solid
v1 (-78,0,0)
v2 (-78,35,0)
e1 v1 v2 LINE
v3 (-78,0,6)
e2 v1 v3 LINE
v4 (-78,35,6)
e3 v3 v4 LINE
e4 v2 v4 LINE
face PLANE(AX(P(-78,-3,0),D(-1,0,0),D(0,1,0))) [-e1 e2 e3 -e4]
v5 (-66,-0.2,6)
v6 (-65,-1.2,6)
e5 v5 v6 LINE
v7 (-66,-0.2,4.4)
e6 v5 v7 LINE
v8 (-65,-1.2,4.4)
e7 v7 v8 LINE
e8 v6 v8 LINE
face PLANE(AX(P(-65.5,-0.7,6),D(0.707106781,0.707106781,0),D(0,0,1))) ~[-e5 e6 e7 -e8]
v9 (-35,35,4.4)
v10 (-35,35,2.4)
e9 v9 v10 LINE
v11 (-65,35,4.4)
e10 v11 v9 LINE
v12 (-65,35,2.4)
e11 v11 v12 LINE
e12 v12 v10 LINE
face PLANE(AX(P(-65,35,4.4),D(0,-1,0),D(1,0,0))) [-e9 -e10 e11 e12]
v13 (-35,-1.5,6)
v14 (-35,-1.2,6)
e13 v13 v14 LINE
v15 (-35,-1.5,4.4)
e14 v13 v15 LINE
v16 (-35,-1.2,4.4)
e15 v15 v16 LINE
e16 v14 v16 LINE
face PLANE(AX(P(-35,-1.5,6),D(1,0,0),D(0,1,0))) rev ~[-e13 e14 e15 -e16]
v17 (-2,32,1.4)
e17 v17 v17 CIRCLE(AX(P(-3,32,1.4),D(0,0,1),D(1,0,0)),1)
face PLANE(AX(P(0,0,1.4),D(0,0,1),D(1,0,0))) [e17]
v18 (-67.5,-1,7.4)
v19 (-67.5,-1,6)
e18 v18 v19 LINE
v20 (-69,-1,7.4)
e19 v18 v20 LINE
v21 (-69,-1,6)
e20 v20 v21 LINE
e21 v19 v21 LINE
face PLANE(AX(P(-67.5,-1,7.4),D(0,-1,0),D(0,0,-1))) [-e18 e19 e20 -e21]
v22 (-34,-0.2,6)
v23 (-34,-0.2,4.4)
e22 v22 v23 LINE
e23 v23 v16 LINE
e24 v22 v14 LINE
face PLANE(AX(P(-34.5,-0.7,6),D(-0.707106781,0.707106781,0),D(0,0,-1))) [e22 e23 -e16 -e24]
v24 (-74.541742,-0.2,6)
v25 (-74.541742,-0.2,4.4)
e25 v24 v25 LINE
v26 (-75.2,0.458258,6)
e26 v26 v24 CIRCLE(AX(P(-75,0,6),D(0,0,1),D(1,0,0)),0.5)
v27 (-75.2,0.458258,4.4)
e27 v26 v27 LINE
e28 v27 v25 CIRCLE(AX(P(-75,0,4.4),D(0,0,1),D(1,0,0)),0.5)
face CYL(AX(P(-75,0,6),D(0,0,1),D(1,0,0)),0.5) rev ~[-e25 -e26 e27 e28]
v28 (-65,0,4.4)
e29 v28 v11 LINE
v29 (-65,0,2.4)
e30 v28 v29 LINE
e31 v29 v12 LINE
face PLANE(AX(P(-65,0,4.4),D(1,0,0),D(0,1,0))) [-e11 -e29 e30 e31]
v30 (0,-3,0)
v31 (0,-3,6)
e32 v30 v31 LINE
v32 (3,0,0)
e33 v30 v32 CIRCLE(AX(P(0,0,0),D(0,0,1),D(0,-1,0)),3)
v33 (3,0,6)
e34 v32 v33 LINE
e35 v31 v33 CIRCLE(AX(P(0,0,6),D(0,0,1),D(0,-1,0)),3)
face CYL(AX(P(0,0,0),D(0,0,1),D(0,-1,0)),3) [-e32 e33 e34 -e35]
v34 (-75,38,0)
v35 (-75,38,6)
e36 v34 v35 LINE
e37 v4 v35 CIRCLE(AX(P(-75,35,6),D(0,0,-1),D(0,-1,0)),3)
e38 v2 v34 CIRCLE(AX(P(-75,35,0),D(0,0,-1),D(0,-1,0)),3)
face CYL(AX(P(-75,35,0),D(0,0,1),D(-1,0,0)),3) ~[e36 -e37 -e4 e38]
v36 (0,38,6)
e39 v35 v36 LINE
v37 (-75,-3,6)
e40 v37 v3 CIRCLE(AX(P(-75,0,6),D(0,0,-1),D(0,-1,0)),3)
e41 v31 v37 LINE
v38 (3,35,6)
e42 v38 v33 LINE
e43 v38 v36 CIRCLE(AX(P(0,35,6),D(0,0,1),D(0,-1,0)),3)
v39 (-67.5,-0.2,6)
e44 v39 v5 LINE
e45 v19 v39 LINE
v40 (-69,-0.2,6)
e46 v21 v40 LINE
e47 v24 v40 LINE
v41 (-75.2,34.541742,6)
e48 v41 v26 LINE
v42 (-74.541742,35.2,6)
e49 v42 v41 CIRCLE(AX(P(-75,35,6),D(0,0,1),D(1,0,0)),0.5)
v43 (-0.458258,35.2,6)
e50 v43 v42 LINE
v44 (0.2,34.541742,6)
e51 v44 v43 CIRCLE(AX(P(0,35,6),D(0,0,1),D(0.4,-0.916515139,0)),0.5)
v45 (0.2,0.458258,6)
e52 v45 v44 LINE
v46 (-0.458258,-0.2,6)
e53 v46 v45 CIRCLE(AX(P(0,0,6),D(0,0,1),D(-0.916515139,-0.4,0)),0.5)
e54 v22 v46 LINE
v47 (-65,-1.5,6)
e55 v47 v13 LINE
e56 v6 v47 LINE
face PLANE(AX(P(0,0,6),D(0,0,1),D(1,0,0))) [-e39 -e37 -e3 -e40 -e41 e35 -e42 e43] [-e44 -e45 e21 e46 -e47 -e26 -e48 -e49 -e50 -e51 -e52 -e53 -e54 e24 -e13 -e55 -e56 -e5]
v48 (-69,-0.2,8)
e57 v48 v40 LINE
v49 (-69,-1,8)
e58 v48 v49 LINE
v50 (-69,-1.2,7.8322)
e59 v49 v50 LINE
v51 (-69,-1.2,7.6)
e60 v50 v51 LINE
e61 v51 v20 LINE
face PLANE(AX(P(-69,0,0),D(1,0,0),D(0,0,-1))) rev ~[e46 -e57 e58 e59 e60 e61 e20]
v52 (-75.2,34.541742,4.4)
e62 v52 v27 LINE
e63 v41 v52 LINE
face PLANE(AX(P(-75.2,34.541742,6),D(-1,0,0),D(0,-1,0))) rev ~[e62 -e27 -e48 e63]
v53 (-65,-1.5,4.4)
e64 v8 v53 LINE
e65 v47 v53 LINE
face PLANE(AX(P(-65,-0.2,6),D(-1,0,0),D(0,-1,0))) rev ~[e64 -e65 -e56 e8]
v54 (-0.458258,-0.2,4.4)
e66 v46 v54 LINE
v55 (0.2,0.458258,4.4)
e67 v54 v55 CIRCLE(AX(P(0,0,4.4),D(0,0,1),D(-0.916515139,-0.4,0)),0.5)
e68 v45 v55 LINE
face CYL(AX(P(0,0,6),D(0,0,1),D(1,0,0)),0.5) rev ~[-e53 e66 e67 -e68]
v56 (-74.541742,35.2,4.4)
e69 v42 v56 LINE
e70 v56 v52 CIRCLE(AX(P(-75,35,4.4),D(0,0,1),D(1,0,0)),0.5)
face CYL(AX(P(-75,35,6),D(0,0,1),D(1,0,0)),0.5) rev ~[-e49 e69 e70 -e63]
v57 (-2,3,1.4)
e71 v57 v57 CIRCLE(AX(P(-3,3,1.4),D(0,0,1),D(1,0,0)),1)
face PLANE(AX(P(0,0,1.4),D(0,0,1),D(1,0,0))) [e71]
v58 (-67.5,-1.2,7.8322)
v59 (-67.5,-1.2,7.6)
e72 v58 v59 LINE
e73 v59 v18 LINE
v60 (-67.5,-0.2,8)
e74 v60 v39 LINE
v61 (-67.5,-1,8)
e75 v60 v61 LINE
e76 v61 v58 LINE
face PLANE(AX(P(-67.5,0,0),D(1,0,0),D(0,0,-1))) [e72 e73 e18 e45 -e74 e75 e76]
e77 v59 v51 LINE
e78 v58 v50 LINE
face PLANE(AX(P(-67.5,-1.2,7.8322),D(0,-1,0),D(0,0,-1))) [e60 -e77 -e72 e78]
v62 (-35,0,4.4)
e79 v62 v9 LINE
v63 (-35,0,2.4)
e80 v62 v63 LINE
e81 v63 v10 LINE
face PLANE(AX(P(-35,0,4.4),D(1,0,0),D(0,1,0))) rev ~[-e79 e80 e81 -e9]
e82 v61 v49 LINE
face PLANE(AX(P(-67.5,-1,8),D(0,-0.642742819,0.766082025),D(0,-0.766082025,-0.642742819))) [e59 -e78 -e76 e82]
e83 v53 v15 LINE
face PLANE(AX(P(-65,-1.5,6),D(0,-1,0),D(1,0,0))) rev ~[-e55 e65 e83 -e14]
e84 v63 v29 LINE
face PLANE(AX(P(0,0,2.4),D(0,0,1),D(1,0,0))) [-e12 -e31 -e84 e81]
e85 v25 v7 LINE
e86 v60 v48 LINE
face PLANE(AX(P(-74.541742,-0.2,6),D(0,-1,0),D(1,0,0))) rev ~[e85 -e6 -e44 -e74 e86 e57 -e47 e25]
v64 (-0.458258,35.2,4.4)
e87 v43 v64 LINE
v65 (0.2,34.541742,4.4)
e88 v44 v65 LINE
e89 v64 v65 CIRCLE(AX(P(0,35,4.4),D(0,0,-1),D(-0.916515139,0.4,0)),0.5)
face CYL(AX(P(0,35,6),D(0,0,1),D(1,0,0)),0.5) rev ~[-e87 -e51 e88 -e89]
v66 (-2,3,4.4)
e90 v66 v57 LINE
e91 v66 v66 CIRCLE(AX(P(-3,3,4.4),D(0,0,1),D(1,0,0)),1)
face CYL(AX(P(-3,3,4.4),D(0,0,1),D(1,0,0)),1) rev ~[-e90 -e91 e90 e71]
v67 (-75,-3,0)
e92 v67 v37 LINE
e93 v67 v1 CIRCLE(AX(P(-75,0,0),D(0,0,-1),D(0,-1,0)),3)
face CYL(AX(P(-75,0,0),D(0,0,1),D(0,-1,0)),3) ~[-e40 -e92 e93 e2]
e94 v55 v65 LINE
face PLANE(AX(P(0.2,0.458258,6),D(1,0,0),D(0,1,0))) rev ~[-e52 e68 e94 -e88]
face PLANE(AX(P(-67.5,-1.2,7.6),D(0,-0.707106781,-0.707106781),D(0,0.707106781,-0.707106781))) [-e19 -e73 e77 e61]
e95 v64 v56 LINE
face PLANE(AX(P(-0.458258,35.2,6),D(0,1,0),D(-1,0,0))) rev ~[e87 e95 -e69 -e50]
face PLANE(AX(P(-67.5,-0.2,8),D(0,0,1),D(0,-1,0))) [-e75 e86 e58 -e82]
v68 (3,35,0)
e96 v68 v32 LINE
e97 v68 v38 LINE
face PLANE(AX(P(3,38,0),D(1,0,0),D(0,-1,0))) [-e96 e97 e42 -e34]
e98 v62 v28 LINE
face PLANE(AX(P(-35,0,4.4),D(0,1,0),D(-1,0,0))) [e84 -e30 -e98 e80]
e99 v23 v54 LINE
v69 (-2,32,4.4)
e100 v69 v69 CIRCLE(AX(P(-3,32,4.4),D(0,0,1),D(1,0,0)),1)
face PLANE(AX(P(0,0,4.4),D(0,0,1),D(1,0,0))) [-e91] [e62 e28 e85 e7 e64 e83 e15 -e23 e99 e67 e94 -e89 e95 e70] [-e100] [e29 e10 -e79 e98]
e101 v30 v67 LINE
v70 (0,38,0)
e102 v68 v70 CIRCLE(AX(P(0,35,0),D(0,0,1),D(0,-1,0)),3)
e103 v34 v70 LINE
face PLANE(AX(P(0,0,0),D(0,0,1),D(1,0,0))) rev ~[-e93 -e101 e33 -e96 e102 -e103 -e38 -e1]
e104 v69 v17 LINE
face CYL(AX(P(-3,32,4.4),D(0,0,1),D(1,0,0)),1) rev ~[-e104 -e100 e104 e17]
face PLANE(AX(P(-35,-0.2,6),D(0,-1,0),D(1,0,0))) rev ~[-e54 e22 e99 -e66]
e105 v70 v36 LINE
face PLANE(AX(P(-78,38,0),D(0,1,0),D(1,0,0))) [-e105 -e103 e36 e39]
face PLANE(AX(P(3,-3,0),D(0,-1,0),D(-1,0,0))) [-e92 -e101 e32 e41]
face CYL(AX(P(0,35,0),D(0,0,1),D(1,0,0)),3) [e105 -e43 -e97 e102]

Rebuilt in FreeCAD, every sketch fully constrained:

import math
import FreeCAD as App
import Part
import Sketcher
Q = App.Units.Quantity


def edges_at(feature, points):
    """Names of the edges that pass closest to the given points."""
    edges = feature.Shape.Edges
    near = lambda p: min(range(len(edges)), key=lambda i: edges[i].distToShape(Part.Vertex(*p))[0])
    return sorted({f"Edge{near(p) + 1}" for p in points})

doc = App.newDocument("Part")
body = doc.addObject("PartDesign::Body", "Body")

# Sketch on XY plane
sketch1 = doc.addObject("Sketcher::SketchObject", "Sketch")
body.addObject(sketch1)
sketch1.AttachmentSupport = (doc.XY_Plane, [""])
sketch1.MapMode = "FlatFace"
sketch1.addGeometry(Part.LineSegment(App.Vector(-78, -3, 0), App.Vector(3, -3, 0)), False)
sketch1.addGeometry(Part.LineSegment(App.Vector(3, -3, 0), App.Vector(3, 38, 0)), False)
sketch1.addGeometry(Part.LineSegment(App.Vector(3, 38, 0), App.Vector(-78, 38, 0)), False)
sketch1.addGeometry(Part.LineSegment(App.Vector(-78, 38, 0), App.Vector(-78, -3, 0)), False)
sketch1.addConstraint(Sketcher.Constraint("Coincident", 0, 2, 1, 1))
sketch1.addConstraint(Sketcher.Constraint("Coincident", 1, 2, 2, 1))
sketch1.addConstraint(Sketcher.Constraint("Coincident", 2, 2, 3, 1))
sketch1.addConstraint(Sketcher.Constraint("Coincident", 3, 2, 0, 1))
sketch1.addConstraint(Sketcher.Constraint("Horizontal", 0))
sketch1.addConstraint(Sketcher.Constraint("Vertical", 1))
sketch1.addConstraint(Sketcher.Constraint("Horizontal", 2))
sketch1.addConstraint(Sketcher.Constraint("Vertical", 3))
sketch1.addConstraint(Sketcher.Constraint("DistanceX", -1, 1, 0, 2, 3.0))
sketch1.addConstraint(Sketcher.Constraint("DistanceY", 0, 2, -1, 1, 3.0))
sketch1.addConstraint(Sketcher.Constraint("DistanceX", 0, 1, 0, 2, 81.0))
sketch1.addConstraint(Sketcher.Constraint("DistanceY", 1, 1, 1, 2, 41.0))
pad1 = doc.addObject("PartDesign::Pad", "Pad")
body.addObject(pad1)
pad1.Profile = sketch1
pad1.Length = 6

# Sketch on XY plane
sketch2 = doc.addObject("Sketcher::SketchObject", "Sketch001")
body.addObject(sketch2)
sketch2.AttachmentSupport = (doc.XY_Plane, [""])
sketch2.MapMode = "FlatFace"
sketch2.AttachmentOffset = App.Placement(App.Vector(0, 0, 6), App.Rotation())
sketch2.addGeometry(Part.LineSegment(App.Vector(-35, -0.2, 0), App.Vector(-0.5, -0.2, 0)), False)
sketch2.addGeometry(Part.ArcOfCircle(Part.Circle(App.Vector(0, 0, 0), App.Vector(0, 0, 1), 0.5), math.radians(-156), math.radians(66)), False)
sketch2.addGeometry(Part.LineSegment(App.Vector(0.2, 0.5, 0), App.Vector(0.2, 34.5, 0)), False)
sketch2.addGeometry(Part.ArcOfCircle(Part.Circle(App.Vector(0, 35, 0), App.Vector(0, 0, 1), 0.5), math.radians(-66), math.radians(156)), False)
sketch2.addGeometry(Part.LineSegment(App.Vector(-0.5, 35.2, 0), App.Vector(-74.5, 35.2, 0)), False)
sketch2.addGeometry(Part.ArcOfCircle(Part.Circle(App.Vector(-75, 35, 0), App.Vector(0, 0, 1), 0.5), math.radians(24), math.radians(246)), False)
sketch2.addGeometry(Part.LineSegment(App.Vector(-75.2, 34.5, 0), App.Vector(-75.2, 0.5, 0)), False)
sketch2.addGeometry(Part.ArcOfCircle(Part.Circle(App.Vector(-75, 0, 0), App.Vector(0, 0, 1), 0.5), math.radians(114), math.radians(336)), False)
sketch2.addGeometry(Part.LineSegment(App.Vector(-74.5, -0.2, 0), App.Vector(-65, -0.2, 0)), False)
sketch2.addGeometry(Part.LineSegment(App.Vector(-65, -0.2, 0), App.Vector(-65, -1.5, 0)), False)
sketch2.addGeometry(Part.LineSegment(App.Vector(-65, -1.5, 0), App.Vector(-35, -1.5, 0)), False)
sketch2.addGeometry(Part.LineSegment(App.Vector(-35, -1.5, 0), App.Vector(-35, -0.2, 0)), False)
sketch2.addConstraint(Sketcher.Constraint("Coincident", 0, 2, 1, 1))
sketch2.addConstraint(Sketcher.Constraint("Coincident", 1, 2, 2, 1))
sketch2.addConstraint(Sketcher.Constraint("Coincident", 2, 2, 3, 1))
sketch2.addConstraint(Sketcher.Constraint("Coincident", 3, 2, 4, 1))
sketch2.addConstraint(Sketcher.Constraint("Coincident", 4, 2, 5, 1))
sketch2.addConstraint(Sketcher.Constraint("Coincident", 5, 2, 6, 1))
sketch2.addConstraint(Sketcher.Constraint("Coincident", 6, 2, 7, 1))
sketch2.addConstraint(Sketcher.Constraint("Coincident", 7, 2, 8, 1))
sketch2.addConstraint(Sketcher.Constraint("Coincident", 8, 2, 9, 1))
sketch2.addConstraint(Sketcher.Constraint("Coincident", 9, 2, 10, 1))
sketch2.addConstraint(Sketcher.Constraint("Coincident", 10, 2, 11, 1))
sketch2.addConstraint(Sketcher.Constraint("Coincident", 11, 2, 0, 1))
sketch2.addConstraint(Sketcher.Constraint("Horizontal", 0))
sketch2.addConstraint(Sketcher.Constraint("Vertical", 2))
sketch2.addConstraint(Sketcher.Constraint("Horizontal", 4))
sketch2.addConstraint(Sketcher.Constraint("Vertical", 6))
sketch2.addConstraint(Sketcher.Constraint("Horizontal", 8))
sketch2.addConstraint(Sketcher.Constraint("Vertical", 9))
sketch2.addConstraint(Sketcher.Constraint("Horizontal", 10))
sketch2.addConstraint(Sketcher.Constraint("Vertical", 11))
sketch2.addConstraint(Sketcher.Constraint("Coincident", 1, 3, -1, 1))
sketch2.addConstraint(Sketcher.Constraint("Equal", 1, 3))
sketch2.addConstraint(Sketcher.Constraint("Equal", 3, 5))
sketch2.addConstraint(Sketcher.Constraint("Equal", 5, 7))
sketch2.addConstraint(Sketcher.Constraint("PointOnObject", 3, 3, -2))
sketch2.addConstraint(Sketcher.Constraint("PointOnObject", 7, 3, -1))
sketch2.addConstraint(Sketcher.Constraint("Horizontal", 3, 3, 5, 3))
sketch2.addConstraint(Sketcher.Constraint("Horizontal", 2, 2, 5, 2))
sketch2.addConstraint(Sketcher.Constraint("Horizontal", 1, 2, 6, 2))
sketch2.addConstraint(Sketcher.Constraint("Horizontal", 0, 2, 7, 2))
sketch2.addConstraint(Sketcher.Constraint("Vertical", 0, 2, 3, 2))
sketch2.addConstraint(Sketcher.Constraint("Radius", 1, 0.5))
sketch2.addConstraint(Sketcher.Constraint("DistanceY", -1, 1, 3, 3, 35.0))
sketch2.addConstraint(Sketcher.Constraint("DistanceX", 5, 3, -1, 1, 75.0))
sketch2.addConstraint(Sketcher.Constraint("DistanceX", 10, 2, -1, 1, 35.0))
sketch2.addConstraint(Sketcher.Constraint("DistanceX", 7, 3, 8, 2, 10.0))
sketch2.addConstraint(Sketcher.Constraint("DistanceY", 0, 2, -1, 1, 0.2))
sketch2.addConstraint(Sketcher.Constraint("DistanceX", -1, 1, 1, 2, 0.2))
sketch2.addConstraint(Sketcher.Constraint("DistanceY", 9, 2, -1, 1, 1.5))
pocket1 = doc.addObject("PartDesign::Pocket", "Pocket")
body.addObject(pocket1)
pocket1.Profile = sketch2
pocket1.Length = 1.6

# Sketch on XY plane
sketch3 = doc.addObject("Sketcher::SketchObject", "Sketch002")
body.addObject(sketch3)
sketch3.AttachmentSupport = (doc.XY_Plane, [""])
sketch3.MapMode = "FlatFace"
sketch3.AttachmentOffset = App.Placement(App.Vector(0, 0, 4.4), App.Rotation())
sketch3.addGeometry(Part.LineSegment(App.Vector(-65, 0, 0), App.Vector(-35, 0, 0)), False)
sketch3.addGeometry(Part.LineSegment(App.Vector(-35, 0, 0), App.Vector(-35, 35, 0)), False)
sketch3.addGeometry(Part.LineSegment(App.Vector(-35, 35, 0), App.Vector(-65, 35, 0)), False)
sketch3.addGeometry(Part.LineSegment(App.Vector(-65, 35, 0), App.Vector(-65, 0, 0)), False)
sketch3.addConstraint(Sketcher.Constraint("Coincident", 0, 2, 1, 1))
sketch3.addConstraint(Sketcher.Constraint("Coincident", 1, 2, 2, 1))
sketch3.addConstraint(Sketcher.Constraint("Coincident", 2, 2, 3, 1))
sketch3.addConstraint(Sketcher.Constraint("Coincident", 3, 2, 0, 1))
sketch3.addConstraint(Sketcher.Constraint("Horizontal", 0))
sketch3.addConstraint(Sketcher.Constraint("Vertical", 1))
sketch3.addConstraint(Sketcher.Constraint("Horizontal", 2))
sketch3.addConstraint(Sketcher.Constraint("Vertical", 3))
sketch3.addConstraint(Sketcher.Constraint("PointOnObject", 0, 2, -1))
sketch3.addConstraint(Sketcher.Constraint("DistanceY", 1, 1, 1, 2, 35.0))
sketch3.addConstraint(Sketcher.Constraint("DistanceX", 0, 2, -1, 1, 35.0))
sketch3.addConstraint(Sketcher.Constraint("DistanceX", 0, 1, 0, 2, 30.0))
pocket2 = doc.addObject("PartDesign::Pocket", "Pocket001")
body.addObject(pocket2)
pocket2.Profile = sketch3
pocket2.Length = 2

# Sketch on XY plane
sketch4 = doc.addObject("Sketcher::SketchObject", "Sketch003")
body.addObject(sketch4)
sketch4.AttachmentSupport = (doc.XY_Plane, [""])
sketch4.MapMode = "FlatFace"
sketch4.AttachmentOffset = App.Placement(App.Vector(0, 0, 4.4), App.Rotation())
sketch4.addGeometry(Part.Circle(App.Vector(-3, 32, 0), App.Vector(0, 0, 1), 1), False)
sketch4.addGeometry(Part.Circle(App.Vector(-3, 3, 0), App.Vector(0, 0, 1), 1), False)
sketch4.addConstraint(Sketcher.Constraint("Equal", 0, 1))
sketch4.addConstraint(Sketcher.Constraint("Vertical", 0, 3, 1, 3))
sketch4.addConstraint(Sketcher.Constraint("Diameter", 0, 2.0))
sketch4.addConstraint(Sketcher.Constraint("DistanceX", 0, 3, -1, 1, 3.0))
sketch4.addConstraint(Sketcher.Constraint("DistanceY", -1, 1, 1, 3, 3.0))
sketch4.addConstraint(Sketcher.Constraint("DistanceY", 1, 3, 0, 3, 29.0))
pocket3 = doc.addObject("PartDesign::Pocket", "Pocket002")
body.addObject(pocket3)
pocket3.Profile = sketch4
pocket3.Length = 3
doc.recompute()

chamfer = doc.addObject("PartDesign::Chamfer", "Chamfer")
body.addObject(chamfer)
chamfer.Base = (pocket3, edges_at(pocket3, [(-65, -0.2, 5.2), (-35, -0.2, 5.2)]))
chamfer.Size = 1
doc.recompute()

fillet = doc.addObject("PartDesign::Fillet", "Fillet")
body.addObject(fillet)
fillet.Base = (chamfer, edges_at(chamfer, [
    (3, 38, 3),
    (-78, 38, 3),
    (-78, -3, 3),
    (3, -3, 3),
]))
fillet.Radius = 3

# Sketch on YZ plane
sketch5 = doc.addObject("Sketcher::SketchObject", "Sketch004")
body.addObject(sketch5)
sketch5.AttachmentSupport = (doc.YZ_Plane, [""])
sketch5.MapMode = "FlatFace"
sketch5.AttachmentOffset = App.Placement(App.Vector(0, 0, -67.5), App.Rotation())
sketch5.addGeometry(Part.LineSegment(App.Vector(-1, 7.4, 0), App.Vector(-1, 6, 0)), False)
sketch5.addGeometry(Part.LineSegment(App.Vector(-1, 6, 0), App.Vector(-0.2, 6, 0)), False)
sketch5.addGeometry(Part.LineSegment(App.Vector(-0.2, 6, 0), App.Vector(-0.2, 8, 0)), False)
sketch5.addGeometry(Part.LineSegment(App.Vector(-0.2, 8, 0), App.Vector(-1, 8, 0)), False)
sketch5.addGeometry(Part.LineSegment(App.Vector(-1, 8, 0), App.Vector(-1.2, 7.83, 0)), False)
sketch5.addGeometry(Part.LineSegment(App.Vector(-1.2, 7.83, 0), App.Vector(-1.2, 7.6, 0)), False)
sketch5.addGeometry(Part.LineSegment(App.Vector(-1.2, 7.6, 0), App.Vector(-1, 7.4, 0)), False)
sketch5.addConstraint(Sketcher.Constraint("Coincident", 0, 2, 1, 1))
sketch5.addConstraint(Sketcher.Constraint("Coincident", 1, 2, 2, 1))
sketch5.addConstraint(Sketcher.Constraint("Coincident", 2, 2, 3, 1))
sketch5.addConstraint(Sketcher.Constraint("Coincident", 3, 2, 4, 1))
sketch5.addConstraint(Sketcher.Constraint("Coincident", 4, 2, 5, 1))
sketch5.addConstraint(Sketcher.Constraint("Coincident", 5, 2, 6, 1))
sketch5.addConstraint(Sketcher.Constraint("Coincident", 6, 2, 0, 1))
sketch5.addConstraint(Sketcher.Constraint("Vertical", 0))
sketch5.addConstraint(Sketcher.Constraint("Horizontal", 1))
sketch5.addConstraint(Sketcher.Constraint("Vertical", 2))
sketch5.addConstraint(Sketcher.Constraint("Horizontal", 3))
sketch5.addConstraint(Sketcher.Constraint("Vertical", 5))
sketch5.addConstraint(Sketcher.Constraint("Vertical", 0, 2, 3, 2))
sketch5.addConstraint(Sketcher.Constraint("DistanceY", 2, 1, 2, 2, 2.0))
sketch5.addConstraint(Sketcher.Constraint("Angle", 6, Q("-45 deg")))
sketch5.addConstraint(Sketcher.Constraint("DistanceX", 1, 1, 1, 2, 0.8))
sketch5.addConstraint(Sketcher.Constraint("DistanceX", 1, 2, -1, 1, 0.2))
sketch5.addConstraint(Sketcher.Constraint("DistanceX", 4, 2, 3, 2, 0.2))
sketch5.addConstraint(Sketcher.Constraint("DistanceY", 5, 2, 3, 2, 0.4))
sketch5.addConstraint(Sketcher.Constraint("DistanceY", -1, 1, 0, 2, 6.0))
sketch5.addConstraint(Sketcher.Constraint("Distance", 4, 0.261))
pad2 = doc.addObject("PartDesign::Pad", "Pad001")
body.addObject(pad2)
pad2.Profile = sketch5
pad2.Length = 1.5
pad2.Reversed = True

doc.recompute()
